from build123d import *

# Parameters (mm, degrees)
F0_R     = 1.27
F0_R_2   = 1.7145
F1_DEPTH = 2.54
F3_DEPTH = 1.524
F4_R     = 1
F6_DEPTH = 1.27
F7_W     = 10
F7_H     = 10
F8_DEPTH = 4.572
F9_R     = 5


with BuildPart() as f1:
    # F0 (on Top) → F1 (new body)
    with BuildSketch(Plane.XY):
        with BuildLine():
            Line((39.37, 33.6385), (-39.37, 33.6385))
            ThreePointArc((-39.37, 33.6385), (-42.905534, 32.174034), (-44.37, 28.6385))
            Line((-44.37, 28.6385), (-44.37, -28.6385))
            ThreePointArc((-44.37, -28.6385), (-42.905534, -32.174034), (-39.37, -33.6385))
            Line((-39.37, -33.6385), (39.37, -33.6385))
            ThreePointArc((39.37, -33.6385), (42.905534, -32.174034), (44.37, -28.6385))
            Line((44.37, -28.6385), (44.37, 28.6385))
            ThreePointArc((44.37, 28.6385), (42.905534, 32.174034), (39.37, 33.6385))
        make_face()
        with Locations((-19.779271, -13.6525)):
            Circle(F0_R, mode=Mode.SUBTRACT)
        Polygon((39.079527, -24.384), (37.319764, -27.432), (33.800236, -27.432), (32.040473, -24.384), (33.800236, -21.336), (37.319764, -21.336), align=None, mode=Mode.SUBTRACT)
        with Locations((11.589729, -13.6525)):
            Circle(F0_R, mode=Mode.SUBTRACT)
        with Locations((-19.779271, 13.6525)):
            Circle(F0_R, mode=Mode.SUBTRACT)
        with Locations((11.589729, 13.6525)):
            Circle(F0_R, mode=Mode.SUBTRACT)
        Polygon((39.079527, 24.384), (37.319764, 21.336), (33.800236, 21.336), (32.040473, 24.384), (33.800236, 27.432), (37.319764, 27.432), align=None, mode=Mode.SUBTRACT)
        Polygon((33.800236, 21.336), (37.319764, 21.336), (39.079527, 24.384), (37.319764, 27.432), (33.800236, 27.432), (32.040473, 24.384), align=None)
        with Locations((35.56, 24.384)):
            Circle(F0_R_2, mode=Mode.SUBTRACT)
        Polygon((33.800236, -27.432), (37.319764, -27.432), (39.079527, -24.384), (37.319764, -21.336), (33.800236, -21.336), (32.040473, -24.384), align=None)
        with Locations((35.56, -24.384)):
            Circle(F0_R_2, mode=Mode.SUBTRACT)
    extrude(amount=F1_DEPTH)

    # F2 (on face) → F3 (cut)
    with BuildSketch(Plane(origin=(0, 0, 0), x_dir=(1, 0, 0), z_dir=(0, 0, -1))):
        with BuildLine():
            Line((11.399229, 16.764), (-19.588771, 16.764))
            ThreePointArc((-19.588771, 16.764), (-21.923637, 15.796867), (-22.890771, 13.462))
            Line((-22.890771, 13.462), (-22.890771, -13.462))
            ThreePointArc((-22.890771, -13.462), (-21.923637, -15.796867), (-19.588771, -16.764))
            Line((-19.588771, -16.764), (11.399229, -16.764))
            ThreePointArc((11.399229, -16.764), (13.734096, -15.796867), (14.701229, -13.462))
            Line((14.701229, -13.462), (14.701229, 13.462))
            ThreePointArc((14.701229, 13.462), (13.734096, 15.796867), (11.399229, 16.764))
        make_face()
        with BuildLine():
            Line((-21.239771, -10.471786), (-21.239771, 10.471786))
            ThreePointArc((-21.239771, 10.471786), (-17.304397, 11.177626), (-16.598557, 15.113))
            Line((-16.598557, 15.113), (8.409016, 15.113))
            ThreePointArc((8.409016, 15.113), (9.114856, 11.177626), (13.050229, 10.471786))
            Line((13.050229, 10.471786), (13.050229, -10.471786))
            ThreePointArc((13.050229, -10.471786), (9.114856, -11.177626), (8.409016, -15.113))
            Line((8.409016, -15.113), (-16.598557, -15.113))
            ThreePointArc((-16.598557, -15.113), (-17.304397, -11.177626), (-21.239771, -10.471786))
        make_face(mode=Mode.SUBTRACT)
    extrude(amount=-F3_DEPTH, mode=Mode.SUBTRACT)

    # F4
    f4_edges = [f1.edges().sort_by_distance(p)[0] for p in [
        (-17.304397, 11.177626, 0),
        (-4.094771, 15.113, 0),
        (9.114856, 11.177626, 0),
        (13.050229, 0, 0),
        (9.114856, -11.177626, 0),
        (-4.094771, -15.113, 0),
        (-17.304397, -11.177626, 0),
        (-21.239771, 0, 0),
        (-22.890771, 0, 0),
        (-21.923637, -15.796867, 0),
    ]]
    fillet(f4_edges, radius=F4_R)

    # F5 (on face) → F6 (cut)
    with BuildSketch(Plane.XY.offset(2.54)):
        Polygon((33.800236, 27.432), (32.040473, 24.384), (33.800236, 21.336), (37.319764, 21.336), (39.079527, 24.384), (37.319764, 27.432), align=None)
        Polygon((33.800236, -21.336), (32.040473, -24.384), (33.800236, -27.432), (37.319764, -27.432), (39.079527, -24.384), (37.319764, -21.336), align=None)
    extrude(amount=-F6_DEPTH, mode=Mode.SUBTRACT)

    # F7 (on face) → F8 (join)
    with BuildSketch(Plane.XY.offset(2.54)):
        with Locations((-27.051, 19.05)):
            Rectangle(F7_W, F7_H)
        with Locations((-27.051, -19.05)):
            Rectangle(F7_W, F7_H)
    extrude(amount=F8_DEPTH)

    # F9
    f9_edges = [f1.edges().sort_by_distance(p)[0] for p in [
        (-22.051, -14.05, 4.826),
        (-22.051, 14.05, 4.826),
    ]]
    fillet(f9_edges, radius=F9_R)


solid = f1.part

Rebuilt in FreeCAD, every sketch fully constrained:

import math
import FreeCAD as App
import Part
import Sketcher

V = App.Vector
Q = App.Units.Quantity


def edges_at(feature, points):
    """Names of the edges that pass closest to the given points."""
    edges = feature.Shape.Edges
    near = lambda p: min(range(len(edges)), key=lambda i: edges[i].distToShape(Part.Vertex(*p))[0])
    return sorted({f"Edge{near(p) + 1}" for p in points})

doc = App.newDocument("Part")
body = doc.addObject("PartDesign::Body", "Body")

# Sketch on XY plane
sketch1 = body.newObject("Sketcher::SketchObject", "Sketch")
sketch1.AttachmentSupport = (doc.getObject("XY_Plane"), [""])
sketch1.MapMode = "FlatFace"
sketch1.addGeometry(Part.LineSegment(V(39.4, 33.6, 0), V(-39.4, 33.6, 0)), False)
sketch1.addGeometry(Part.ArcOfCircle(Part.Circle(V(-39.4, 28.6, 0), V(0, 0, 1), 5), math.radians(90), math.radians(180)), False)
sketch1.addGeometry(Part.LineSegment(V(-44.4, 28.6, 0), V(-44.4, -28.6, 0)), False)
sketch1.addGeometry(Part.ArcOfCircle(Part.Circle(V(-39.4, -28.6, 0), V(0, 0, 1), 5), math.radians(180), math.radians(270)), False)
sketch1.addGeometry(Part.LineSegment(V(-39.4, -33.6, 0), V(39.4, -33.6, 0)), False)
sketch1.addGeometry(Part.ArcOfCircle(Part.Circle(V(39.4, -28.6, 0), V(0, 0, 1), 5), math.radians(-90), math.radians(0)), False)
sketch1.addGeometry(Part.LineSegment(V(44.4, -28.6, 0), V(44.4, 28.6, 0)), False)
sketch1.addGeometry(Part.ArcOfCircle(Part.Circle(V(39.4, 28.6, 0), V(0, 0, 1), 5), math.radians(0), math.radians(90)), False)
sketch1.addGeometry(Part.Circle(V(-19.8, -13.7, 0), V(0, 0, 1), 1.3), False)
sketch1.addGeometry(Part.Circle(V(11.6, -13.7, 0), V(0, 0, 1), 1.3), False)
sketch1.addGeometry(Part.Circle(V(35.6, -24.4, 0), V(0, 0, 1), 1.7), False)
sketch1.addGeometry(Part.Circle(V(-19.8, 13.7, 0), V(0, 0, 1), 1.3), False)
sketch1.addGeometry(Part.Circle(V(11.6, 13.7, 0), V(0, 0, 1), 1.3), False)
sketch1.addGeometry(Part.Circle(V(35.6, 24.4, 0), V(0, 0, 1), 1.7), False)
sketch1.addConstraint(Sketcher.Constraint("Tangent", 0, 2, 1, 1))
sketch1.addConstraint(Sketcher.Constraint("Tangent", 1, 2, 2, 1))
sketch1.addConstraint(Sketcher.Constraint("Tangent", 2, 2, 3, 1))
sketch1.addConstraint(Sketcher.Constraint("Tangent", 3, 2, 4, 1))
sketch1.addConstraint(Sketcher.Constraint("Tangent", 4, 2, 5, 1))
sketch1.addConstraint(Sketcher.Constraint("Tangent", 5, 2, 6, 1))
sketch1.addConstraint(Sketcher.Constraint("Tangent", 6, 2, 7, 1))
sketch1.addConstraint(Sketcher.Constraint("Tangent", 7, 2, 0, 1))
sketch1.addConstraint(Sketcher.Constraint("Horizontal", 0))
sketch1.addConstraint(Sketcher.Constraint("Vertical", 2))
sketch1.addConstraint(Sketcher.Constraint("Horizontal", 4))
sketch1.addConstraint(Sketcher.Constraint("Vertical", 6))
sketch1.addConstraint(Sketcher.Constraint("Equal", 1, 3))
sketch1.addConstraint(Sketcher.Constraint("Equal", 3, 5))
sketch1.addConstraint(Sketcher.Constraint("Equal", 5, 7))
sketch1.addConstraint(Sketcher.Constraint("Equal", 8, 9))
sketch1.addConstraint(Sketcher.Constraint("Equal", 9, 11))
sketch1.addConstraint(Sketcher.Constraint("Equal", 11, 12))
sketch1.addConstraint(Sketcher.Constraint("Equal", 10, 13))
sketch1.addConstraint(Sketcher.Constraint("Symmetric", 1, 3, 5, 3, -1, 1))
sketch1.addConstraint(Sketcher.Constraint("Symmetric", 8, 3, 11, 3, -1))
sketch1.addConstraint(Sketcher.Constraint("Symmetric", 9, 3, 12, 3, -1))
sketch1.addConstraint(Sketcher.Constraint("Symmetric", 10, 3, 13, 3, -1))
sketch1.addConstraint(Sketcher.Constraint("Horizontal", 8, 3, 9, 3))
sketch1.addConstraint(Sketcher.Constraint("Diameter", 8, Q("0.1 in")))
sketch1.addConstraint(Sketcher.Constraint("Diameter", 10, Q("0.135 in")))
sketch1.addConstraint(Sketcher.Constraint("DistanceX", 0, 2, 0, 1, Q("3.1 in")))
sketch1.addConstraint(Sketcher.Constraint("DistanceX", -1, 1, 10, 3, Q("1.4 in")))
sketch1.addConstraint(Sketcher.Constraint("DistanceY", 2, 2, 2, 1, Q("2.255 in")))
sketch1.addConstraint(Sketcher.Constraint("DistanceY", 10, 3, -1, 1, Q("0.96 in")))
sketch1.addConstraint(Sketcher.Constraint("Radius", 1, 5.0))
sketch1.addConstraint(Sketcher.Constraint("DistanceY", 3, 3, 8, 3, Q("0.59 in")))
sketch1.addConstraint(Sketcher.Constraint("DistanceX", 8, 3, 9, 3, Q("1.235 in")))
sketch1.addConstraint(Sketcher.Constraint("DistanceX", 8, 3, -1, 1, 19.779271))
pad1 = body.newObject("PartDesign::Pad", "Pad")
pad1.Profile = sketch1
pad1.Length = Q("0.1 in")

# Sketch on XY plane
sketch2 = body.newObject("Sketcher::SketchObject", "Sketch001")
sketch2.AttachmentSupport = (doc.getObject("XY_Plane"), [""])
sketch2.MapMode = "FlatFace"
sketch2.addGeometry(Part.LineSegment(V(11.4, -16.8, 0), V(-19.6, -16.8, 0)), False)
sketch2.addGeometry(Part.ArcOfCircle(Part.Circle(V(-19.6, -13.5, 0), V(0, 0, 1), 3.3), math.radians(-180), math.radians(-90)), False)
sketch2.addGeometry(Part.LineSegment(V(-22.9, -13.5, 0), V(-22.9, 13.5, 0)), False)
sketch2.addGeometry(Part.ArcOfCircle(Part.Circle(V(-19.6, 13.5, 0), V(0, 0, 1), 3.3), math.radians(90), math.radians(180)), False)
sketch2.addGeometry(Part.LineSegment(V(-19.6, 16.8, 0), V(11.4, 16.8, 0)), False)
sketch2.addGeometry(Part.ArcOfCircle(Part.Circle(V(11.4, 13.5, 0), V(0, 0, 1), 3.3), math.radians(0), math.radians(90)), False)
sketch2.addGeometry(Part.LineSegment(V(14.7, 13.5, 0), V(14.7, -13.5, 0)), False)
sketch2.addGeometry(Part.ArcOfCircle(Part.Circle(V(11.4, -13.5, 0), V(0, 0, 1), 3.3), math.radians(-90), math.radians(0)), False)
sketch2.addGeometry(Part.ArcOfCircle(Part.Circle(V(-19.8, 13.7, 0), V(0, 0, 1), 3.5), math.radians(-115), math.radians(25)), False)
sketch2.addGeometry(Part.LineSegment(V(-21.2, 10.5, 0), V(-21.2, -10.5, 0)), False)
sketch2.addGeometry(Part.ArcOfCircle(Part.Circle(V(-19.8, -13.7, 0), V(0, 0, 1), 3.5), math.radians(-25), math.radians(115)), False)
sketch2.addGeometry(Part.LineSegment(V(-16.6, -15.1, 0), V(8.4, -15.1, 0)), False)
sketch2.addGeometry(Part.ArcOfCircle(Part.Circle(V(11.6, -13.7, 0), V(0, 0, 1), 3.5), math.radians(65), math.radians(205)), False)
sketch2.addGeometry(Part.LineSegment(V(13.1, -10.5, 0), V(13.1, 10.5, 0)), False)
sketch2.addGeometry(Part.ArcOfCircle(Part.Circle(V(11.6, 13.7, 0), V(0, 0, 1), 3.5), math.radians(155), math.radians(295)), False)
sketch2.addGeometry(Part.LineSegment(V(8.4, 15.1, 0), V(-16.6, 15.1, 0)), False)
sketch2.addConstraint(Sketcher.Constraint("Tangent", 0, 2, 1, 2))
sketch2.addConstraint(Sketcher.Constraint("Tangent", 1, 1, 2, 1))
sketch2.addConstraint(Sketcher.Constraint("Tangent", 2, 2, 3, 2))
sketch2.addConstraint(Sketcher.Constraint("Tangent", 3, 1, 4, 1))
sketch2.addConstraint(Sketcher.Constraint("Tangent", 4, 2, 5, 2))
sketch2.addConstraint(Sketcher.Constraint("Tangent", 5, 1, 6, 1))
sketch2.addConstraint(Sketcher.Constraint("Tangent", 6, 2, 7, 2))
sketch2.addConstraint(Sketcher.Constraint("Tangent", 7, 1, 0, 1))
sketch2.addConstraint(Sketcher.Constraint("Coincident", 8, 1, 9, 1))
sketch2.addConstraint(Sketcher.Constraint("Coincident", 9, 2, 10, 2))
sketch2.addConstraint(Sketcher.Constraint("Coincident", 10, 1, 11, 1))
sketch2.addConstraint(Sketcher.Constraint("Coincident", 11, 2, 12, 2))
sketch2.addConstraint(Sketcher.Constraint("Coincident", 12, 1, 13, 1))
sketch2.addConstraint(Sketcher.Constraint("Coincident", 13, 2, 14, 2))
sketch2.addConstraint(Sketcher.Constraint("Coincident", 14, 1, 15, 1))
sketch2.addConstraint(Sketcher.Constraint("Coincident", 15, 2, 8, 2))
sketch2.addConstraint(Sketcher.Constraint("Horizontal", 0))
sketch2.addConstraint(Sketcher.Constraint("Vertical", 2))
sketch2.addConstraint(Sketcher.Constraint("Horizontal", 4))
sketch2.addConstraint(Sketcher.Constraint("Vertical", 6))
sketch2.addConstraint(Sketcher.Constraint("Vertical", 9))
sketch2.addConstraint(Sketcher.Constraint("Horizontal", 11))
sketch2.addConstraint(Sketcher.Constraint("Vertical", 13))
sketch2.addConstraint(Sketcher.Constraint("Horizontal", 15))
sketch2.addConstraint(Sketcher.Constraint("Equal", 1, 3))
sketch2.addConstraint(Sketcher.Constraint("Equal", 3, 5))
sketch2.addConstraint(Sketcher.Constraint("Equal", 5, 7))
sketch2.addConstraint(Sketcher.Constraint("Equal", 8, 10))
sketch2.addConstraint(Sketcher.Constraint("Equal", 10, 12))
sketch2.addConstraint(Sketcher.Constraint("Equal", 12, 14))
sketch2.addConstraint(Sketcher.Constraint("Symmetric", 8, 3, 10, 3, -1))
sketch2.addConstraint(Sketcher.Constraint("Symmetric", 12, 3, 14, 3, -1))
sketch2.addConstraint(Sketcher.Constraint("Horizontal", 10, 3, 12, 3))
sketch2.addConstraint(Sketcher.Constraint("Horizontal", 9, 2, 12, 1))
sketch2.addConstraint(Sketcher.Constraint("Vertical", 11, 2, 14, 1))
sketch2.addConstraint(Sketcher.Constraint("Radius", 1, Q("0.13 in")))
sketch2.addConstraint(Sketcher.Constraint("DistanceX", 0, 2, 0, 1, Q("1.22 in")))
sketch2.addConstraint(Sketcher.Constraint("DistanceY", 2, 1, 2, 2, Q("1.06 in")))
sketch2.addConstraint(Sketcher.Constraint("DistanceY", 1, 3, -1, 1, Q("0.53 in")))
sketch2.addConstraint(Sketcher.Constraint("Radius", 8, 3.5))
sketch2.addConstraint(Sketcher.Constraint("DistanceY", 10, 1, -1, 1, Q("0.595 in")))
sketch2.addConstraint(Sketcher.Constraint("DistanceY", 10, 3, 8, 3, Q("1.075 in")))
sketch2.addConstraint(Sketcher.Constraint("DistanceX", 10, 3, 12, 3, Q("1.235 in")))
sketch2.addConstraint(Sketcher.Constraint("DistanceX", 8, 1, 3, 3, Q("0.065 in")))
sketch2.addConstraint(Sketcher.Constraint("DistanceX", 12, 1, 6, 2, Q("0.065 in")))
sketch2.addConstraint(Sketcher.Constraint("DistanceX", 1, 3, -1, 1, 19.588771))
pocket1 = body.newObject("PartDesign::Pocket", "Pocket")
pocket1.Profile = sketch2
pocket1.Length = Q("0.06 in")
pocket1.Reversed = True
doc.recompute()

fillet = body.newObject("PartDesign::Fillet", "Fillet")
fillet.Base = (pocket1, edges_at(pocket1, [
    (-17.304, 11.178, 0),
    (-4.095, 15.113, 0),
    (9.115, 11.178, 0),
    (13.05, 0, 0),
    (9.115, -11.178, 0),
    (-4.095, -15.113, 0),
    (-17.304, -11.178, 0),
    (-21.24, 0, 0),
    (-22.891, 0, 0),
    (-21.924, -15.797, 0),
]))
fillet.Radius = 1

# Sketch on XY plane
sketch3 = body.newObject("Sketcher::SketchObject", "Sketch002")
sketch3.AttachmentSupport = (doc.getObject("XY_Plane"), [""])
sketch3.MapMode = "FlatFace"
sketch3.AttachmentOffset = App.Placement(V(0, 0, 0.1 * 25.4), App.Rotation())
sketch3.addGeometry(Part.LineSegment(V(33.8, 27.4, 0), V(32, 24.4, 0)), False)
sketch3.addGeometry(Part.LineSegment(V(32, 24.4, 0), V(33.8, 21.3, 0)), False)
sketch3.addGeometry(Part.LineSegment(V(33.8, 21.3, 0), V(37.3, 21.3, 0)), False)
sketch3.addGeometry(Part.LineSegment(V(37.3, 21.3, 0), V(39.1, 24.4, 0)), False)
sketch3.addGeometry(Part.LineSegment(V(39.1, 24.4, 0), V(37.3, 27.4, 0)), False)
sketch3.addGeometry(Part.LineSegment(V(37.3, 27.4, 0), V(33.8, 27.4, 0)), False)
sketch3.addGeometry(Part.LineSegment(V(33.8, -21.3, 0), V(32, -24.4, 0)), False)
sketch3.addGeometry(Part.LineSegment(V(32, -24.4, 0), V(33.8, -27.4, 0)), False)
sketch3.addGeometry(Part.LineSegment(V(33.8, -27.4, 0), V(37.3, -27.4, 0)), False)
sketch3.addGeometry(Part.LineSegment(V(37.3, -27.4, 0), V(39.1, -24.4, 0)), False)
sketch3.addGeometry(Part.LineSegment(V(39.1, -24.4, 0), V(37.3, -21.3, 0)), False)
sketch3.addGeometry(Part.LineSegment(V(37.3, -21.3, 0), V(33.8, -21.3, 0)), False)
sketch3.addConstraint(Sketcher.Constraint("Coincident", 0, 2, 1, 1))
sketch3.addConstraint(Sketcher.Constraint("Coincident", 1, 2, 2, 1))
sketch3.addConstraint(Sketcher.Constraint("Coincident", 2, 2, 3, 1))
sketch3.addConstraint(Sketcher.Constraint("Coincident", 3, 2, 4, 1))
sketch3.addConstraint(Sketcher.Constraint("Coincident", 4, 2, 5, 1))
sketch3.addConstraint(Sketcher.Constraint("Coincident", 5, 2, 0, 1))
sketch3.addConstraint(Sketcher.Constraint("Coincident", 6, 2, 7, 1))
sketch3.addConstraint(Sketcher.Constraint("Coincident", 7, 2, 8, 1))
sketch3.addConstraint(Sketcher.Constraint("Coincident", 8, 2, 9, 1))
sketch3.addConstraint(Sketcher.Constraint("Coincident", 9, 2, 10, 1))
sketch3.addConstraint(Sketcher.Constraint("Coincident", 10, 2, 11, 1))
sketch3.addConstraint(Sketcher.Constraint("Coincident", 11, 2, 6, 1))
sketch3.addConstraint(Sketcher.Constraint("Horizontal", 2))
sketch3.addConstraint(Sketcher.Constraint("Horizontal", 5))
sketch3.addConstraint(Sketcher.Constraint("Horizontal", 8))
sketch3.addConstraint(Sketcher.Constraint("Horizontal", 11))
sketch3.addConstraint(Sketcher.Constraint("Symmetric", 0, 2, 6, 2, -1))
sketch3.addConstraint(Sketcher.Constraint("Symmetric", 5, 2, 7, 2, -1))
sketch3.addConstraint(Sketcher.Constraint("Symmetric", 3, 2, 9, 2, -1))
sketch3.addConstraint(Sketcher.Constraint("Symmetric", 2, 2, 10, 2, -1))
sketch3.addConstraint(Sketcher.Constraint("Parallel", 0, 3))
sketch3.addConstraint(Sketcher.Constraint("Parallel", 1, 4))
sketch3.addConstraint(Sketcher.Constraint("Parallel", 3, 6))
sketch3.addConstraint(Sketcher.Constraint("Parallel", 4, 7))
sketch3.addConstraint(Sketcher.Constraint("Parallel", 6, 9))
sketch3.addConstraint(Sketcher.Constraint("Horizontal", 0, 2, 3, 2))
sketch3.addConstraint(Sketcher.Constraint("Vertical", 2, 2, 4, 2))
sketch3.addConstraint(Sketcher.Constraint("Angle", 0, Q("-119.999991 deg")))
sketch3.addConstraint(Sketcher.Constraint("DistanceY", 6, 2, 1, 2, Q("1.8 in")))
sketch3.addConstraint(Sketcher.Constraint("DistanceY", -1, 1, 0, 2, Q("0.96 in")))
sketch3.addConstraint(Sketcher.Constraint("DistanceX", 2, 1, 2, 2, 3.519528))
sketch3.addConstraint(Sketcher.Constraint("DistanceX", -1, 1, 0, 2, 32.040473))
pocket2 = body.newObject("PartDesign::Pocket", "Pocket001")
pocket2.Profile = sketch3
pocket2.Length = Q("0.05 in")

# Sketch on XY plane
sketch4 = body.newObject("Sketcher::SketchObject", "Sketch003")
sketch4.AttachmentSupport = (doc.getObject("XY_Plane"), [""])
sketch4.MapMode = "FlatFace"
sketch4.AttachmentOffset = App.Placement(V(0, 0, 0.1 * 25.4), App.Rotation())
sketch4.addGeometry(Part.LineSegment(V(-32, 24, 0), V(-32, 14, 0)), False)
sketch4.addGeometry(Part.LineSegment(V(-32, 14, 0), V(-22, 14, 0)), False)
sketch4.addGeometry(Part.LineSegment(V(-22, 14, 0), V(-22, 24, 0)), False)
sketch4.addGeometry(Part.LineSegment(V(-22, 24, 0), V(-32, 24, 0)), False)
sketch4.addGeometry(Part.LineSegment(V(-32, -14, 0), V(-32, -24, 0)), False)
sketch4.addGeometry(Part.LineSegment(V(-32, -24, 0), V(-22, -24, 0)), False)
sketch4.addGeometry(Part.LineSegment(V(-22, -24, 0), V(-22, -14, 0)), False)
sketch4.addGeometry(Part.LineSegment(V(-22, -14, 0), V(-32, -14, 0)), False)
sketch4.addConstraint(Sketcher.Constraint("Coincident", 0, 2, 1, 1))
sketch4.addConstraint(Sketcher.Constraint("Coincident", 1, 2, 2, 1))
sketch4.addConstraint(Sketcher.Constraint("Coincident", 2, 2, 3, 1))
sketch4.addConstraint(Sketcher.Constraint("Coincident", 3, 2, 0, 1))
sketch4.addConstraint(Sketcher.Constraint("Coincident", 4, 2, 5, 1))
sketch4.addConstraint(Sketcher.Constraint("Coincident", 5, 2, 6, 1))
sketch4.addConstraint(Sketcher.Constraint("Coincident", 6, 2, 7, 1))
sketch4.addConstraint(Sketcher.Constraint("Coincident", 7, 2, 4, 1))
sketch4.addConstraint(Sketcher.Constraint("Vertical", 0))
sketch4.addConstraint(Sketcher.Constraint("Horizontal", 1))
sketch4.addConstraint(Sketcher.Constraint("Vertical", 2))
sketch4.addConstraint(Sketcher.Constraint("Horizontal", 3))
sketch4.addConstraint(Sketcher.Constraint("Vertical", 4))
sketch4.addConstraint(Sketcher.Constraint("Horizontal", 5))
sketch4.addConstraint(Sketcher.Constraint("Vertical", 6))
sketch4.addConstraint(Sketcher.Constraint("Horizontal", 7))
sketch4.addConstraint(Sketcher.Constraint("Symmetric", 3, 2, 4, 2, -1))
sketch4.addConstraint(Sketcher.Constraint("Symmetric", 1, 2, 6, 2, -1))
sketch4.addConstraint(Sketcher.Constraint("Equal", 7, 0))
sketch4.addConstraint(Sketcher.Constraint("DistanceY", 4, 2, 0, 2, Q("1.5 in")))
sketch4.addConstraint(Sketcher.Constraint("DistanceX", 1, 1, 1, 2, 10.0))
sketch4.addConstraint(Sketcher.Constraint("DistanceX", 0, 2, -1, 1, 32.051))
pad2 = body.newObject("PartDesign::Pad", "Pad001")
pad2.Profile = sketch4
pad2.Length = Q("0.18 in")
doc.recompute()

fillet2 = body.newObject("PartDesign::Fillet", "Fillet001")
fillet2.Base = (pad2, edges_at(pad2, [(-22.051, -14.05, 4.826), (-22.051, 14.05, 4.826)]))
fillet2.Radius = 5

doc.recompute()
